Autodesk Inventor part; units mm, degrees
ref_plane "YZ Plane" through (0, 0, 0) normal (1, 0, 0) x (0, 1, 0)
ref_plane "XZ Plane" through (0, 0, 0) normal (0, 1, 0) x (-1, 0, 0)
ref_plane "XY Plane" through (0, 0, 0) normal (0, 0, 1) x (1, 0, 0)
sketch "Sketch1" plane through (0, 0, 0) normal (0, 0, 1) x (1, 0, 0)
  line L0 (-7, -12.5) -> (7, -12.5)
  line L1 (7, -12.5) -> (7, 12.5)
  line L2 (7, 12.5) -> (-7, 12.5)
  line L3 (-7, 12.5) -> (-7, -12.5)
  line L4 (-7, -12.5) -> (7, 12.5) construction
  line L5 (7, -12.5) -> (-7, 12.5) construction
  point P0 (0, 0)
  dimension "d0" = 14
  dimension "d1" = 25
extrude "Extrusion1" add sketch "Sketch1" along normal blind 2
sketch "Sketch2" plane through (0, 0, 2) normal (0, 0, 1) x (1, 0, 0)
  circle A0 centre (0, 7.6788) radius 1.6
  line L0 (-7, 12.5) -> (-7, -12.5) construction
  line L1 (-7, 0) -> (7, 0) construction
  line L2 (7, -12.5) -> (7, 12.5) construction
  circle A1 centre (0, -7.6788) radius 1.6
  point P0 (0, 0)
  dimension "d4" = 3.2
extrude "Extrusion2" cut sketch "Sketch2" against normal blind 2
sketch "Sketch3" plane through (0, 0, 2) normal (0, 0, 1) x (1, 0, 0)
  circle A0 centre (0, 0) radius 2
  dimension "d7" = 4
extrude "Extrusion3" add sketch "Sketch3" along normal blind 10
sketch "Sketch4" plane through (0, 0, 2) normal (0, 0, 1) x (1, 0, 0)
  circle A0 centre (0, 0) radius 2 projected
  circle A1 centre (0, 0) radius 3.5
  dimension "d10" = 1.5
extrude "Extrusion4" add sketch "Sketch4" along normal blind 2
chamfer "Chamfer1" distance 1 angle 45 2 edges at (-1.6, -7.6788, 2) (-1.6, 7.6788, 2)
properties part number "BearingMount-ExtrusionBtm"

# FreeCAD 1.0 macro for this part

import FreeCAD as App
import Part
import Sketcher
from FreeCAD import Vector


def edges_at(feature, points):
    """Names of the edges that pass closest to the given points."""
    edges = feature.Shape.Edges
    near = lambda p: min(range(len(edges)), key=lambda i: edges[i].distToShape(Part.Vertex(*p))[0])
    return sorted({f"Edge{near(p) + 1}" for p in points})

doc = App.newDocument("Part")
body = doc.addObject("PartDesign::Body", "Body")

sketch1 = body.newObject("Sketcher::SketchObject", "Sketch")
sketch1.AttachmentSupport = (doc.getObject("XY_Plane"), [""])
sketch1.MapMode = "FlatFace"
sketch1.addGeometry([
    Part.LineSegment(Vector(-7, 12.5, 0), Vector(-7, -12.5, 0)),
    Part.LineSegment(Vector(-7, -12.5, 0), Vector(7, -12.5, 0)),
    Part.LineSegment(Vector(7, -12.5, 0), Vector(7, 12.5, 0)),
    Part.LineSegment(Vector(7, 12.5, 0), Vector(-7, 12.5, 0)),
], False)
sketch1.addConstraint([
    Sketcher.Constraint("Coincident", 0, 2, 1, 1),
    Sketcher.Constraint("Coincident", 1, 2, 2, 1),
    Sketcher.Constraint("Coincident", 2, 2, 3, 1),
    Sketcher.Constraint("Coincident", 3, 2, 0, 1),
    Sketcher.Constraint("Vertical", 0),
    Sketcher.Constraint("Horizontal", 1),
    Sketcher.Constraint("Vertical", 2),
    Sketcher.Constraint("Horizontal", 3),
    Sketcher.Constraint("Symmetric", 0, 2, 2, 2, -1, 1),
    Sketcher.Constraint("DistanceX", 1, 1, 1, 2, 14.0),
    Sketcher.Constraint("DistanceY", 0, 2, 0, 1, 25.0),
])
pad1 = body.newObject("PartDesign::Pad", "Pad")
pad1.Profile = sketch1
pad1.Length = 2

sketch2 = body.newObject("Sketcher::SketchObject", "Sketch001")
sketch2.AttachmentSupport = (doc.getObject("XY_Plane"), [""])
sketch2.MapMode = "FlatFace"
sketch2.AttachmentOffset = App.Placement(Vector(0, 0, 2), App.Rotation())
sketch2.addGeometry([
    Part.Circle(Vector(0, 7.6788, 0), Vector(0, 0, 1), 1.6),
    Part.Circle(Vector(0, -7.6788, 0), Vector(0, 0, 1), 1.6),
], False)
sketch2.addConstraint([
    Sketcher.Constraint("Equal", 0, 1),
    Sketcher.Constraint("Symmetric", 0, 3, 1, 3, -1, 1),
    Sketcher.Constraint("PointOnObject", 0, 3, -2),
    Sketcher.Constraint("Diameter", 0, 3.2),
    Sketcher.Constraint("DistanceY", -1, 1, 0, 3, 7.6788),
])
pocket1 = body.newObject("PartDesign::Pocket", "Pocket")
pocket1.Profile = sketch2
pocket1.Length = 2

sketch3 = body.newObject("Sketcher::SketchObject", "Sketch002")
sketch3.AttachmentSupport = (doc.getObject("XY_Plane"), [""])
sketch3.MapMode = "FlatFace"
sketch3.AttachmentOffset = App.Placement(Vector(0, 0, 2), App.Rotation())
sketch3.addGeometry(Part.Circle(Vector(0, 0, 0), Vector(0, 0, 1), 2), False)
sketch3.addConstraint([
    Sketcher.Constraint("Coincident", 0, 3, -1, 1),
    Sketcher.Constraint("Diameter", 0, 4.0),
])
pad2 = body.newObject("PartDesign::Pad", "Pad001")
pad2.Profile = sketch3
pad2.Length = 10

sketch4 = body.newObject("Sketcher::SketchObject", "Sketch003")
sketch4.AttachmentSupport = (doc.getObject("XY_Plane"), [""])
sketch4.MapMode = "FlatFace"
sketch4.AttachmentOffset = App.Placement(Vector(0, 0, 2), App.Rotation())
sketch4.addGeometry([
    Part.Circle(Vector(0, 0, 0), Vector(0, 0, 1), 3.5),
    Part.Circle(Vector(0, 0, 0), Vector(0, 0, 1), 2),
], False)
sketch4.addConstraint([
    Sketcher.Constraint("Coincident", 0, 3, -1, 1),
    Sketcher.Constraint("Coincident", 1, 3, -1, 1),
    Sketcher.Constraint("Diameter", 0, 7.0),
    Sketcher.Constraint("Diameter", 1, 4.0),
])
pad3 = body.newObject("PartDesign::Pad", "Pad002")
pad3.Profile = sketch4
pad3.Length = 2
doc.recompute()

chamfer = body.newObject("PartDesign::Chamfer", "Chamfer")
chamfer.Base = (pad3, edges_at(pad3, [(-1.6, -7.679, 2), (-1.6, 7.679, 2)]))
chamfer.Size = 1

doc.recompute()
